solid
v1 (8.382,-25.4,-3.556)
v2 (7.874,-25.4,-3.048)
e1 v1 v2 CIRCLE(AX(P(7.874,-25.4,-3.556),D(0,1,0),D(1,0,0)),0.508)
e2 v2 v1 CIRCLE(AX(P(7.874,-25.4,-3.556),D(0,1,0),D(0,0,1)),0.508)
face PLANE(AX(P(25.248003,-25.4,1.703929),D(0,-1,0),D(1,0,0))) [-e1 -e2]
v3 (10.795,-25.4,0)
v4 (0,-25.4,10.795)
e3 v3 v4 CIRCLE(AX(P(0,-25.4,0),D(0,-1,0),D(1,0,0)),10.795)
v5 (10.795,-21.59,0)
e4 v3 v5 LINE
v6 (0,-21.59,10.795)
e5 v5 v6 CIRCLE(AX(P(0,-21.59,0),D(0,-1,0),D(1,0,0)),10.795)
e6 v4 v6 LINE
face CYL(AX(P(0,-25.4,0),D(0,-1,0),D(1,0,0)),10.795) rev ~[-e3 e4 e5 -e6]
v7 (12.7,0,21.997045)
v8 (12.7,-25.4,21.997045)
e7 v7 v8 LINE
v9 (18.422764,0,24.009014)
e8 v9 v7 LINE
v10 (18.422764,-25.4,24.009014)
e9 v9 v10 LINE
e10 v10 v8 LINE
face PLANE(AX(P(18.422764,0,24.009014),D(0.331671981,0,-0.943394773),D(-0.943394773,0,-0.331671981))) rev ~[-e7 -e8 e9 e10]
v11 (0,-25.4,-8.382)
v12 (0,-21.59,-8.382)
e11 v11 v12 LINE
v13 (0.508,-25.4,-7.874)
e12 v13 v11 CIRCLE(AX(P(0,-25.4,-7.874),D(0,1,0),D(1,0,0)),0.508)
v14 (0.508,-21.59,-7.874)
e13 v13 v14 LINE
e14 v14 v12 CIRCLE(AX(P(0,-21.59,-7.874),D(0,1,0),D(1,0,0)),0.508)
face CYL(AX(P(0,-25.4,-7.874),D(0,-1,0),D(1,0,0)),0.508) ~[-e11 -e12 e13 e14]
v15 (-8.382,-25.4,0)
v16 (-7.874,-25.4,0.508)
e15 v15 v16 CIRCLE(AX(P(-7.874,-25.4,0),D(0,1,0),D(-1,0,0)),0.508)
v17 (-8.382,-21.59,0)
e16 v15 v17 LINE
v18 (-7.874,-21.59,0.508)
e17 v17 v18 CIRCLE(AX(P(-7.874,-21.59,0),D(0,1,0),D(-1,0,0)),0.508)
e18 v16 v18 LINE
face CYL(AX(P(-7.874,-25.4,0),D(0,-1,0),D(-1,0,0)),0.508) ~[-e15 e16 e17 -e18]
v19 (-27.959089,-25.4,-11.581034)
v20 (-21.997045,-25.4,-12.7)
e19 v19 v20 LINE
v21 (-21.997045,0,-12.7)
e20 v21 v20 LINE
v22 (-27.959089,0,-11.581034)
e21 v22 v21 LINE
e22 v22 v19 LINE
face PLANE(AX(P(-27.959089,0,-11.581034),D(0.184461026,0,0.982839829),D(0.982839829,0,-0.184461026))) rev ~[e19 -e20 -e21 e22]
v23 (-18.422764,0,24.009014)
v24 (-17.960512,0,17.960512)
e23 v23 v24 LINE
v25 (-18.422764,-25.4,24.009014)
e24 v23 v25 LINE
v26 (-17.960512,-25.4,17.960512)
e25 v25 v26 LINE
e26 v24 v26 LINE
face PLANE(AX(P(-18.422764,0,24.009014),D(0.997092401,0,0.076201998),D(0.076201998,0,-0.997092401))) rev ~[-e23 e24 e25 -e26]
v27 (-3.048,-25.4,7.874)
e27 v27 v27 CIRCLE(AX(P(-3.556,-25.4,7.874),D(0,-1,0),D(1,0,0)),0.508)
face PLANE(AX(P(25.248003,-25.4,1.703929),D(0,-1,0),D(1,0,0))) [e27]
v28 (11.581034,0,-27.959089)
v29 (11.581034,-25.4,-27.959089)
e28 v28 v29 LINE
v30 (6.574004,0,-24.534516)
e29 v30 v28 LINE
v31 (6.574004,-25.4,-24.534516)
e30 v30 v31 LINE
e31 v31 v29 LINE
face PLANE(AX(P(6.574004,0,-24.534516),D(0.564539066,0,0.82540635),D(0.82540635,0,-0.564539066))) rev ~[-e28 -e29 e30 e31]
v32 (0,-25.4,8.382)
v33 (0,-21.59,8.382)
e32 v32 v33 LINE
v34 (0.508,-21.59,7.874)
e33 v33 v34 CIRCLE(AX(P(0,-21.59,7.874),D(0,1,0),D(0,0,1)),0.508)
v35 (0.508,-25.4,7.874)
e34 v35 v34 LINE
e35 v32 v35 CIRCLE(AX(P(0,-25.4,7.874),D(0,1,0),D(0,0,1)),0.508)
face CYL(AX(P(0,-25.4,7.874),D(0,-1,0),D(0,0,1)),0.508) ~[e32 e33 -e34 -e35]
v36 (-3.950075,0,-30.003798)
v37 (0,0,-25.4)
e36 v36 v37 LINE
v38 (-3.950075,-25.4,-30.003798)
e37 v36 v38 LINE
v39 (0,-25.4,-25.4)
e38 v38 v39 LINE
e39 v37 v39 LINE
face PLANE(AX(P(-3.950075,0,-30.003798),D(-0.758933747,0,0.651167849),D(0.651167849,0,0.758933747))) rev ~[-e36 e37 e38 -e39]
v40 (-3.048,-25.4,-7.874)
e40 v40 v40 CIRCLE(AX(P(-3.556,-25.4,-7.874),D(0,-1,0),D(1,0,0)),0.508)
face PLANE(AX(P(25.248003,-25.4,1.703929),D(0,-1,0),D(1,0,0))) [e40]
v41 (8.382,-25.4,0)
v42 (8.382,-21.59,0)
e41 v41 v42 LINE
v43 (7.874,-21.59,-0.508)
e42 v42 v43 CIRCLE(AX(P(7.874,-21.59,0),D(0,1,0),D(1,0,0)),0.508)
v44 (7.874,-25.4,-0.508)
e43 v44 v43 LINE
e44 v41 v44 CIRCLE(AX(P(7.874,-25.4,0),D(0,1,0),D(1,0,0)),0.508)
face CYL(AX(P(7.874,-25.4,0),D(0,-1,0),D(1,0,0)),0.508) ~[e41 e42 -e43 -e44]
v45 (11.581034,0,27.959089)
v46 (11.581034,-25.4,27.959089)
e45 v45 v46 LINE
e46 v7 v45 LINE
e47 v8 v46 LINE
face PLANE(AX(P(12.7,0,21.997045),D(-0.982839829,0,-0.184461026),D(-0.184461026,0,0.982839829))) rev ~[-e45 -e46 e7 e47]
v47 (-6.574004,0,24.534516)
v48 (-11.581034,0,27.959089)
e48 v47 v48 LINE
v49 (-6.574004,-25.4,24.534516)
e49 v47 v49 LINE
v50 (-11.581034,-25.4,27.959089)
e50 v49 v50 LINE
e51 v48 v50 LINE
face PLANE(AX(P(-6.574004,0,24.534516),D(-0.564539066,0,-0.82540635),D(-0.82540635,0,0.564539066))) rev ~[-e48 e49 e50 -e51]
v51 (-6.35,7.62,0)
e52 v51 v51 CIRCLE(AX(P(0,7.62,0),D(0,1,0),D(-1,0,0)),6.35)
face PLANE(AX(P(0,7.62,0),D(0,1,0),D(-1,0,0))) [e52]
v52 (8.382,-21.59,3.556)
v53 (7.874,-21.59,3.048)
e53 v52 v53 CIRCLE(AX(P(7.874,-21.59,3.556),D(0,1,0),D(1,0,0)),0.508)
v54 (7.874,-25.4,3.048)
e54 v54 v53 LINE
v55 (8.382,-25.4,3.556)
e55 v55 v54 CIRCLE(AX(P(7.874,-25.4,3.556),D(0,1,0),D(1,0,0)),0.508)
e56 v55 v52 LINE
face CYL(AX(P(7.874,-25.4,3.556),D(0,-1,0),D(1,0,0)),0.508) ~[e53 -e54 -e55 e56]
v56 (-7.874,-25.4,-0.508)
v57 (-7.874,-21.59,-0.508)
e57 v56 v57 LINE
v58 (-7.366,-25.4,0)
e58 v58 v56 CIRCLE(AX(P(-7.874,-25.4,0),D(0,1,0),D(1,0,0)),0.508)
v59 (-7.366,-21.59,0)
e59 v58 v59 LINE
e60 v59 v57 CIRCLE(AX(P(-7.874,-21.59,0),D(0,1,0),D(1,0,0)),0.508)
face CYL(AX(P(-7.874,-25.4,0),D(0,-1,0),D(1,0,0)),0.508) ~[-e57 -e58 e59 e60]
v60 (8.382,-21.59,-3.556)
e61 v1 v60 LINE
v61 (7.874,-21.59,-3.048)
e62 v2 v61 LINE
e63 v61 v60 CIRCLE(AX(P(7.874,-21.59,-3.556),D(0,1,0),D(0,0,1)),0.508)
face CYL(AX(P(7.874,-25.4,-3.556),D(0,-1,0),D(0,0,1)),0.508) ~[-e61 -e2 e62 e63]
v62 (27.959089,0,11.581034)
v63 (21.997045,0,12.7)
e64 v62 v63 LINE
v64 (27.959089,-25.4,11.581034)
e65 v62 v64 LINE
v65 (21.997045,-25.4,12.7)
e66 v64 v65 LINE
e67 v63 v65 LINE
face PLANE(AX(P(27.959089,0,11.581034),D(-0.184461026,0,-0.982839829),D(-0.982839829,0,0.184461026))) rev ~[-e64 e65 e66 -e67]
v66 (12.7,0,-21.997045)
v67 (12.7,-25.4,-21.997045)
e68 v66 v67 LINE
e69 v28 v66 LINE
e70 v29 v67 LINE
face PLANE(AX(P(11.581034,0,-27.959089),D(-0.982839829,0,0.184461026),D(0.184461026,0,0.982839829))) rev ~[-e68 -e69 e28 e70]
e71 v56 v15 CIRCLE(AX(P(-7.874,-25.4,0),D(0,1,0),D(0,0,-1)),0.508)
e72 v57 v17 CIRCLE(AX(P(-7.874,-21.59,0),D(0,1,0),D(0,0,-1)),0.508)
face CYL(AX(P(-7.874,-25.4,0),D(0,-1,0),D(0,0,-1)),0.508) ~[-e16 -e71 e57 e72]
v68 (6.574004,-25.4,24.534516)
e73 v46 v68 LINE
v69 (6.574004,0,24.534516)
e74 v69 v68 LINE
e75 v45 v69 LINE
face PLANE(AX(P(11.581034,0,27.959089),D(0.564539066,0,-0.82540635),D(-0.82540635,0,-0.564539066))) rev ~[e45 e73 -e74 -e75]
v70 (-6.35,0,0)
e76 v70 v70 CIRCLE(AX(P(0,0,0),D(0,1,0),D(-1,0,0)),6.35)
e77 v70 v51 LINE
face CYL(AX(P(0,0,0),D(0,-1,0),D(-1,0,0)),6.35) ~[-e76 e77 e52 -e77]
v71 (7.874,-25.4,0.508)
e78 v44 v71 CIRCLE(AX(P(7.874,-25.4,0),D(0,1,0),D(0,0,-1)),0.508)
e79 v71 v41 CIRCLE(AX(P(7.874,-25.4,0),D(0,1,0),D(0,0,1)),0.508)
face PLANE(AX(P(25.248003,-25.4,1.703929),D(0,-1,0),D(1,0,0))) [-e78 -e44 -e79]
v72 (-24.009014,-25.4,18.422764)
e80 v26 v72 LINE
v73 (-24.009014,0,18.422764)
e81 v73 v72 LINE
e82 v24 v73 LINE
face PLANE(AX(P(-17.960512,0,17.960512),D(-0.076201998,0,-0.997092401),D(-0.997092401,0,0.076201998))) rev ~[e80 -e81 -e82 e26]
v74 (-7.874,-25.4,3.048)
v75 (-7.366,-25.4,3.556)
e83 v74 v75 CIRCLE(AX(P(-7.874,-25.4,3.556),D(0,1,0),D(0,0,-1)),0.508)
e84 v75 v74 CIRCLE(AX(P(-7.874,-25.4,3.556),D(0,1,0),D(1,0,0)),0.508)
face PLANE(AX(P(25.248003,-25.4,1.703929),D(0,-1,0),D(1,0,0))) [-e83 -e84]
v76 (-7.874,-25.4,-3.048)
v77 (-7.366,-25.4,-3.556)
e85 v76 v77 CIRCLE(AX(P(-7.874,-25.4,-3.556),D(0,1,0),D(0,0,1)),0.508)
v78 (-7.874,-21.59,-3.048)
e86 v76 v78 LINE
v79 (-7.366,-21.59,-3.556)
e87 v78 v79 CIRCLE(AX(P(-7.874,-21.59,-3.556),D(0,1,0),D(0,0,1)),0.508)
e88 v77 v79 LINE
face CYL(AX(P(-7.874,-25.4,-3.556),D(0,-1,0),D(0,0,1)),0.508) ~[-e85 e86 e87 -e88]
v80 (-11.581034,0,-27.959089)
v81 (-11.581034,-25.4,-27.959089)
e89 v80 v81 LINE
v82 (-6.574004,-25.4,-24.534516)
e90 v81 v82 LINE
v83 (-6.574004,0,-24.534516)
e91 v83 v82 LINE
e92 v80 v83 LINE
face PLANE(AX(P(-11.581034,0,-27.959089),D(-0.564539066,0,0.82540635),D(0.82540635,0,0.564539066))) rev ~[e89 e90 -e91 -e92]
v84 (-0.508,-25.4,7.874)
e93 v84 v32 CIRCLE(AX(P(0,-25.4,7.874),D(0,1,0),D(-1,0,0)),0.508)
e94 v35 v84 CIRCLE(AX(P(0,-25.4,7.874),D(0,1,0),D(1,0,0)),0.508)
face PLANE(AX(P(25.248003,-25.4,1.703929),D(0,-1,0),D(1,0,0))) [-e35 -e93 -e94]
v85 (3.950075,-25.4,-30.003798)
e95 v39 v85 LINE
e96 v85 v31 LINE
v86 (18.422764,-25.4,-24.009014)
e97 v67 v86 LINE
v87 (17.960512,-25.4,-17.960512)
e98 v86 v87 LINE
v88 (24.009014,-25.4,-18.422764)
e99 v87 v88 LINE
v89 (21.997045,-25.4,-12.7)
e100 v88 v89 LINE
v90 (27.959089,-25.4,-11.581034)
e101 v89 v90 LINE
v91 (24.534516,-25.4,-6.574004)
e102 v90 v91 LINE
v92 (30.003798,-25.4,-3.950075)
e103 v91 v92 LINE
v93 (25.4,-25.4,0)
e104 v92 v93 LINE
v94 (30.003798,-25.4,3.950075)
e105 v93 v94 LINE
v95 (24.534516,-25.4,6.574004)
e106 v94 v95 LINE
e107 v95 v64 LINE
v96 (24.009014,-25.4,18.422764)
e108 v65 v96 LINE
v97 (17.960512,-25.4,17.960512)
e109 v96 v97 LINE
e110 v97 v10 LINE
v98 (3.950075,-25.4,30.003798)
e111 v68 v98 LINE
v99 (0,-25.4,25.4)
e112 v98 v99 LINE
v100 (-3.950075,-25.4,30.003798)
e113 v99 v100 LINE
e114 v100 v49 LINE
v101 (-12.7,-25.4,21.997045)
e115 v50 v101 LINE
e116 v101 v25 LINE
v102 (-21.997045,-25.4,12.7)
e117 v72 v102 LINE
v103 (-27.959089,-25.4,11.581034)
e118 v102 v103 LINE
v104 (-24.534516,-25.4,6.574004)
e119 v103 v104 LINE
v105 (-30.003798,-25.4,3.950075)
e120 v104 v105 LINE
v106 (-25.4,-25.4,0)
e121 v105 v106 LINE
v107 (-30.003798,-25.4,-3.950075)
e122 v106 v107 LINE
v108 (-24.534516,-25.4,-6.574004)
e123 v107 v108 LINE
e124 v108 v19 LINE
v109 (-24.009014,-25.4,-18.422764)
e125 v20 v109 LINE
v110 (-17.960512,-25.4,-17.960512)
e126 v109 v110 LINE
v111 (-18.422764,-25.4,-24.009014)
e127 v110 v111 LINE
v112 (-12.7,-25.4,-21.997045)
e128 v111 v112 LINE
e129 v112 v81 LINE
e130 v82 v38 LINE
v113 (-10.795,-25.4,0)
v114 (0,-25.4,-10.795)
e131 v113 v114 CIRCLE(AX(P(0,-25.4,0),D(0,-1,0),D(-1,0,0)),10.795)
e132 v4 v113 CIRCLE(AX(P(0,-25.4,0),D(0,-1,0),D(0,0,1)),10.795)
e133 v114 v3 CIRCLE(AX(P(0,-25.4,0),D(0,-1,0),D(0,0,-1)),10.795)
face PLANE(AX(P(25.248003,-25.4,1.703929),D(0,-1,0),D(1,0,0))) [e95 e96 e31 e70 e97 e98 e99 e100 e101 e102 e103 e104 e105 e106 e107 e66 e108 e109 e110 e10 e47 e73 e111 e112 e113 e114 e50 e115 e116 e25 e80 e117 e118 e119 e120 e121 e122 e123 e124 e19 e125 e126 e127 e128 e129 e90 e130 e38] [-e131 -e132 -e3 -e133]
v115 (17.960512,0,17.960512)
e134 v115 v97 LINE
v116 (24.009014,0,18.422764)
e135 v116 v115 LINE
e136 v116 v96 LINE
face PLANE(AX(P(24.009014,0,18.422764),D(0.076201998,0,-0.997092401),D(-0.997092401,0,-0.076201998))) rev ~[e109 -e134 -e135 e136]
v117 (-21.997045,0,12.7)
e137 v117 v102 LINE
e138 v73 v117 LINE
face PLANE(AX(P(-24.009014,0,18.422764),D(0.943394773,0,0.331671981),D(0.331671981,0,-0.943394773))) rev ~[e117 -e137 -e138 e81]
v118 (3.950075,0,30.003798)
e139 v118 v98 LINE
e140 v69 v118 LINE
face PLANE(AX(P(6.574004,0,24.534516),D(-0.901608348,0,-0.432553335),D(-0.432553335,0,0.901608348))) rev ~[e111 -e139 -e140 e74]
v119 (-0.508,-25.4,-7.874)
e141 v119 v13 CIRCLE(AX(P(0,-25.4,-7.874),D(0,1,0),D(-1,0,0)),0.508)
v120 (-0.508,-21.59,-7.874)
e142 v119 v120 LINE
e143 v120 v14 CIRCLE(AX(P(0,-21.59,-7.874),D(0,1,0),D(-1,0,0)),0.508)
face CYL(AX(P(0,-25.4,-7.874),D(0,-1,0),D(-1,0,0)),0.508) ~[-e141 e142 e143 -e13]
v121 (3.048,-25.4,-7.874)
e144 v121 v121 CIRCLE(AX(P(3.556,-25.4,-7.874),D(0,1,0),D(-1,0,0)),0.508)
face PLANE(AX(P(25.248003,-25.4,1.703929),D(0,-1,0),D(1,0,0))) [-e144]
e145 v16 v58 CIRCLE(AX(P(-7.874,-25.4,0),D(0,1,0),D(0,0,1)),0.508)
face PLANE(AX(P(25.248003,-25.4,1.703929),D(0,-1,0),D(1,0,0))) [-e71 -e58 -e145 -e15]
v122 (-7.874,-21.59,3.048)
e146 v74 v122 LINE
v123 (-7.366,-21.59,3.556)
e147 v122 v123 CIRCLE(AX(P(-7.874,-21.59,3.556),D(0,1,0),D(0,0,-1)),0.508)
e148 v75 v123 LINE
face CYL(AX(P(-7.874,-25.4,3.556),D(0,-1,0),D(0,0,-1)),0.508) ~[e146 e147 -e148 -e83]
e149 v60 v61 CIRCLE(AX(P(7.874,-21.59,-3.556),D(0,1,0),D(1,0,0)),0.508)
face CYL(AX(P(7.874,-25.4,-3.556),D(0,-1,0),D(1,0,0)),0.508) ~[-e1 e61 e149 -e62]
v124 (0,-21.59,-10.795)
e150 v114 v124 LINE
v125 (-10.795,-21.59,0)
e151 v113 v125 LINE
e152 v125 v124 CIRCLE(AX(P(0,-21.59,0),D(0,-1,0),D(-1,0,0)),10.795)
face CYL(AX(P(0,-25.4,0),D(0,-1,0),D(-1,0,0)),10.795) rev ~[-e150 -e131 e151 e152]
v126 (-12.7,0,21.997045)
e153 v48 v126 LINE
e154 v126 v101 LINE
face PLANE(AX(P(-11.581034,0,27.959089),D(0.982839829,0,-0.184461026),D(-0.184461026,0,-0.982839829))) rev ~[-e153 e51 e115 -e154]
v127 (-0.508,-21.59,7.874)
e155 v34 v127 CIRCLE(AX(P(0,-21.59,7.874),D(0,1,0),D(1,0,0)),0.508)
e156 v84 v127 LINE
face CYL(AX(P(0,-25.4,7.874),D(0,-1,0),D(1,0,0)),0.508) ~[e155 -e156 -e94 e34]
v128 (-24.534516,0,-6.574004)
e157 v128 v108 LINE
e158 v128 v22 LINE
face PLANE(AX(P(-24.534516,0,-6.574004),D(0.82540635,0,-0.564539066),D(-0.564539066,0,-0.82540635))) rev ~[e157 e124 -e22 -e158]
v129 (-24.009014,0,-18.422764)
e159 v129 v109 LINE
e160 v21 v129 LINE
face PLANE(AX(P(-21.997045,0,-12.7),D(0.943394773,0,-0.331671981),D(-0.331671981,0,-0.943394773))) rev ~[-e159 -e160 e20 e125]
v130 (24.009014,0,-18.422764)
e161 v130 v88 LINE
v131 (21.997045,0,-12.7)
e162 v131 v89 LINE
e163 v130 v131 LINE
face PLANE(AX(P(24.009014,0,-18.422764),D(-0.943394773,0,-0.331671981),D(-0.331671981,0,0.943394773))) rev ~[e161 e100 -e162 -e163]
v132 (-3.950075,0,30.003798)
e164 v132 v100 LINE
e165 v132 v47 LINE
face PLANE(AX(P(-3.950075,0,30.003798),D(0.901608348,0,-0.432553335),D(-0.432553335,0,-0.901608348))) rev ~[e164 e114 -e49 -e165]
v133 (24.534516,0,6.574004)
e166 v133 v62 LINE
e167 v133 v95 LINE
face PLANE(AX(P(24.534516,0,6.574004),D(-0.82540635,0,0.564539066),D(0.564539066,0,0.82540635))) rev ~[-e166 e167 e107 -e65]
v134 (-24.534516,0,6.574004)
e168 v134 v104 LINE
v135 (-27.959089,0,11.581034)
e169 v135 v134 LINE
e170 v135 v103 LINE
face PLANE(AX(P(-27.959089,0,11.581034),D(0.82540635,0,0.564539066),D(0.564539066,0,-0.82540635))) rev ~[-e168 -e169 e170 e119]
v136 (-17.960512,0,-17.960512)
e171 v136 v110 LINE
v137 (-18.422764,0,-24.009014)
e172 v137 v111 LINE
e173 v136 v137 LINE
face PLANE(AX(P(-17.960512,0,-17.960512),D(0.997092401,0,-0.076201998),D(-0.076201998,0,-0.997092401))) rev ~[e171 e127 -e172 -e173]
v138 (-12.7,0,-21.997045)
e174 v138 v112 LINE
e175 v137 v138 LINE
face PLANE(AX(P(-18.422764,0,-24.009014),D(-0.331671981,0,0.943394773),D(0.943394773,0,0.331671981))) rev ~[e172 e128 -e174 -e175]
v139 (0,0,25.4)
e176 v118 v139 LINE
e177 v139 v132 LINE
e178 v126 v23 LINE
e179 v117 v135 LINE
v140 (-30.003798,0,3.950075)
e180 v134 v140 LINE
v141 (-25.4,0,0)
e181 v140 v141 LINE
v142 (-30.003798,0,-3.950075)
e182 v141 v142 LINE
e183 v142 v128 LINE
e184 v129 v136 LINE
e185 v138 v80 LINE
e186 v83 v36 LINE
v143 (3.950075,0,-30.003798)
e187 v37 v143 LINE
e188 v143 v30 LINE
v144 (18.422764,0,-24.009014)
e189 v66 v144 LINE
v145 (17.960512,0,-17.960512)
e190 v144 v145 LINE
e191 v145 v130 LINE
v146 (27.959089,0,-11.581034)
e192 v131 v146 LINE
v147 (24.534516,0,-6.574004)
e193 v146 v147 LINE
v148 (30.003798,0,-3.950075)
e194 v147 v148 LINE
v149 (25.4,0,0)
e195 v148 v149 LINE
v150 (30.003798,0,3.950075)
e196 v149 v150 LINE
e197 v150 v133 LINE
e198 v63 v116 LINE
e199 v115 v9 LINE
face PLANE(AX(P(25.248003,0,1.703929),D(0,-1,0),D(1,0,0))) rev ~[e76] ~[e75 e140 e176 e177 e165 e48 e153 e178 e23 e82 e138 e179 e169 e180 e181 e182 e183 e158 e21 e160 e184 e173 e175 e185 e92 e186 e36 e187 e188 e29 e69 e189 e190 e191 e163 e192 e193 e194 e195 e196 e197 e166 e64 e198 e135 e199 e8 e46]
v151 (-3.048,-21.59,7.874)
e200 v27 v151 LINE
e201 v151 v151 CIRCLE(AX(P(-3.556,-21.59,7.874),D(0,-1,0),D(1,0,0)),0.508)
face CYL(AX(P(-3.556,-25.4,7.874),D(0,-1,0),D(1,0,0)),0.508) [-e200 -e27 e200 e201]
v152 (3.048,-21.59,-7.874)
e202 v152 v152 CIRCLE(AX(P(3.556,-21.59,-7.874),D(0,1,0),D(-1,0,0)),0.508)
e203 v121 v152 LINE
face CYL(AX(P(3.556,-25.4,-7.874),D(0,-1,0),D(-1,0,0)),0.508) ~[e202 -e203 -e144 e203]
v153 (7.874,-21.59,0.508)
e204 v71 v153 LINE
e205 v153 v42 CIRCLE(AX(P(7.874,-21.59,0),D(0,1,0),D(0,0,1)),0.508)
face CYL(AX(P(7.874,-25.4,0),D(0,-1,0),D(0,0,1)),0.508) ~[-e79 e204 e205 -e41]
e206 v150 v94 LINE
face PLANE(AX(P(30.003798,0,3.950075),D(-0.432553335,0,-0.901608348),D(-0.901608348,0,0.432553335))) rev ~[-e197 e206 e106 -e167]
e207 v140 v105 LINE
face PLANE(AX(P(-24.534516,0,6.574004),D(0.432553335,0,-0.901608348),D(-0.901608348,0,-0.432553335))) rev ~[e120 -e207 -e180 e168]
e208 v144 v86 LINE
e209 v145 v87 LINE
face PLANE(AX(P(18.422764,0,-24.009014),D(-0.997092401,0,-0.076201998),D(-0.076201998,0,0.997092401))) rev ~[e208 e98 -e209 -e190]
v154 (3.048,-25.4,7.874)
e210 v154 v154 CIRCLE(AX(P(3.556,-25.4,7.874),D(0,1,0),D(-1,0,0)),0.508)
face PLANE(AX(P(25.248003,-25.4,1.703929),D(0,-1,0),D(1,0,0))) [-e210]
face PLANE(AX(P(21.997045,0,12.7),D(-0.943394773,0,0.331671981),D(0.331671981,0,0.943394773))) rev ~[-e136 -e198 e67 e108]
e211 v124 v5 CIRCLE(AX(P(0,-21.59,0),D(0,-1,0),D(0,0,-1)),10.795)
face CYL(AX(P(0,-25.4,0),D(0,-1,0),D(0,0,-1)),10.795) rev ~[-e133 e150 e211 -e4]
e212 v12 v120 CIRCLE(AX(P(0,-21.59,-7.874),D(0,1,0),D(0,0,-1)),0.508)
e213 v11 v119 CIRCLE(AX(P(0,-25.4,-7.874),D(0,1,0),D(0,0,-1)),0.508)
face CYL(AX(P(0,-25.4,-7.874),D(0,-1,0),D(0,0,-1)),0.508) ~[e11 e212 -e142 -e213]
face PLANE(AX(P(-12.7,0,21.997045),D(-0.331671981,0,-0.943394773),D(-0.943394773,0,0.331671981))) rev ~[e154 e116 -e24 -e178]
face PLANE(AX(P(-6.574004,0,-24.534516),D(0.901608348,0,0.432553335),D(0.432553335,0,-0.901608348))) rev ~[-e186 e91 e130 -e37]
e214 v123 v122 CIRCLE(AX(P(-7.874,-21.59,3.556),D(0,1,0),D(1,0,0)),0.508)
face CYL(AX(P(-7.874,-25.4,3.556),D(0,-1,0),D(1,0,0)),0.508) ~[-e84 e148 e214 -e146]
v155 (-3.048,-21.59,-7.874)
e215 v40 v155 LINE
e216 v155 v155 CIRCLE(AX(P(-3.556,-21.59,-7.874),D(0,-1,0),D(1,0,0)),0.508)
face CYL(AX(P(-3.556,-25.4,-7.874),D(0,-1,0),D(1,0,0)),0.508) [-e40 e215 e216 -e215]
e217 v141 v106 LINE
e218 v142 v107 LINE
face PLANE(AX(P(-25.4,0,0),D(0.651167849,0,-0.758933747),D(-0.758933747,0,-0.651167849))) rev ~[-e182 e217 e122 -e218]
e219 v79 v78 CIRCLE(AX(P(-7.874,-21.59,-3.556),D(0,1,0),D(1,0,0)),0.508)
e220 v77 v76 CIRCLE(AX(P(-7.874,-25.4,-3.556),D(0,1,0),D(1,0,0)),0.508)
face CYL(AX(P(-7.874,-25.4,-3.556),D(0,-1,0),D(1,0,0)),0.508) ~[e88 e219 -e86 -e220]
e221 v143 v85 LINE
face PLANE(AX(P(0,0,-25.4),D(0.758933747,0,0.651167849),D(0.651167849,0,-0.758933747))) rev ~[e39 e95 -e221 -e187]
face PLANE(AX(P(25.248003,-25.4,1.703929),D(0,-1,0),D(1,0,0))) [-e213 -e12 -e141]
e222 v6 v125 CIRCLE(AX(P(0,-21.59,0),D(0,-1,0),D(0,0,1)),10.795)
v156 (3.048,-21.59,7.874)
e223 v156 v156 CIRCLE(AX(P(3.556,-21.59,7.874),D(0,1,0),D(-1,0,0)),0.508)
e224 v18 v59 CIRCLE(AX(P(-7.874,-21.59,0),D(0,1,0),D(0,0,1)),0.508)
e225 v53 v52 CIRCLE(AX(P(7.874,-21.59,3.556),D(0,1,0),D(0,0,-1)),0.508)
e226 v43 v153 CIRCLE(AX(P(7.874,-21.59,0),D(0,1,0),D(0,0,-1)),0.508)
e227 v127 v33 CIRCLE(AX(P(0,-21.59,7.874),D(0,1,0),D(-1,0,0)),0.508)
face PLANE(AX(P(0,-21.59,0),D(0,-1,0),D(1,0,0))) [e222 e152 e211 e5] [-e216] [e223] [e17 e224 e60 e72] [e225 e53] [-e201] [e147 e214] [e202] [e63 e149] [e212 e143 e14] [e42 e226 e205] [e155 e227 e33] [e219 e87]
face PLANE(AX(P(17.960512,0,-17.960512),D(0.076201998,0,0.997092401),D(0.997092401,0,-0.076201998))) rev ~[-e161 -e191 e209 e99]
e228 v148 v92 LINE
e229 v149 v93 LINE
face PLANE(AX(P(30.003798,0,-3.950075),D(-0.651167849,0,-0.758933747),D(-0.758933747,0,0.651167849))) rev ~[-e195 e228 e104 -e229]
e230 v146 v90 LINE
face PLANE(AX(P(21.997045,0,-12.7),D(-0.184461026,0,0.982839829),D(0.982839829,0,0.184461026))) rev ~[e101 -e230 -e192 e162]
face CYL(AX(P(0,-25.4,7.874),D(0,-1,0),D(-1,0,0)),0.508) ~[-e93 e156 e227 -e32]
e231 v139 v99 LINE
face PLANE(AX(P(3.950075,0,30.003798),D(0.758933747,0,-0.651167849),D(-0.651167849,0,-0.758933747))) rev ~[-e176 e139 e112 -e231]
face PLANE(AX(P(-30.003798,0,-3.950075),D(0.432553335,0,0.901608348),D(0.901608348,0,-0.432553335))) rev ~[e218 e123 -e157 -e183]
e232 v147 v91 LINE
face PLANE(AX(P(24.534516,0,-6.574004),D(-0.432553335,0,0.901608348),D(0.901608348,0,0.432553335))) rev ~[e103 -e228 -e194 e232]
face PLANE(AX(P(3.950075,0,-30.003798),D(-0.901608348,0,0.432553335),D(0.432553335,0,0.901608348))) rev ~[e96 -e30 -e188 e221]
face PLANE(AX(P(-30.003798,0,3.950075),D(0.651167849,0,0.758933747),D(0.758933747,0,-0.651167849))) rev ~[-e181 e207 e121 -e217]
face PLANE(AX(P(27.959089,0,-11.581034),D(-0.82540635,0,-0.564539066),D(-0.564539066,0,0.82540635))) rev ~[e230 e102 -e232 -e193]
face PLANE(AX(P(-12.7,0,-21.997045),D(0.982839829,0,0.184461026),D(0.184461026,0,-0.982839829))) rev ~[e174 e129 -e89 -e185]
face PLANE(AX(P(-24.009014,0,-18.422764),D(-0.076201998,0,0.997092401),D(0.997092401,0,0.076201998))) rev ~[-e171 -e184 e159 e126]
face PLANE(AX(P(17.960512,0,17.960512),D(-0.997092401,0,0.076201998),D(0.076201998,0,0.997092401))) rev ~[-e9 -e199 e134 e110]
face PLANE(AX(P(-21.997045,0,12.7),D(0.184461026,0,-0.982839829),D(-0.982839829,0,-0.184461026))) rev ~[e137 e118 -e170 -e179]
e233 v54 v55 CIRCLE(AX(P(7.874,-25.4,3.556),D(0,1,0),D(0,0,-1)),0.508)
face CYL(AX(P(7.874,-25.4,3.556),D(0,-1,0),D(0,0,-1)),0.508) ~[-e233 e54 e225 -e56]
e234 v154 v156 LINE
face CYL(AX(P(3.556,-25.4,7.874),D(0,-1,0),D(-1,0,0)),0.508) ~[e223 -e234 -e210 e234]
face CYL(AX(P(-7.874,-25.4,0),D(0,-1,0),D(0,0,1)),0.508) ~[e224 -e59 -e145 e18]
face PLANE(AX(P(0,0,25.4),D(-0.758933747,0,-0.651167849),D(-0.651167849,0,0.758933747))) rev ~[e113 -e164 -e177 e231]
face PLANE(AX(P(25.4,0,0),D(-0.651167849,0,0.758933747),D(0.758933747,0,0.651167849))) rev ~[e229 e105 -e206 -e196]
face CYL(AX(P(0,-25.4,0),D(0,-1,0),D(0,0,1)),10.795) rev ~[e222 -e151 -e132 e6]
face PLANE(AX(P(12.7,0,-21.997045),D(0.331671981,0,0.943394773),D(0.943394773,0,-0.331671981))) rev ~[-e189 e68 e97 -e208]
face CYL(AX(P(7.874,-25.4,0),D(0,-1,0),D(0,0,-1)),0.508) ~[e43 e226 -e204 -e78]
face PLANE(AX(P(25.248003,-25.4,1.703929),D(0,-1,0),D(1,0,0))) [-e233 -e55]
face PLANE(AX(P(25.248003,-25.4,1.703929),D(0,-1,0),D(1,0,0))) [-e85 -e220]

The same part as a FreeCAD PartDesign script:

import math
import FreeCAD as App
import Part
import Sketcher
from FreeCAD import Vector
Q = App.Units.Quantity

doc = App.newDocument("Part")
body = doc.addObject("PartDesign::Body", "Body")

sketch1 = body.newObject("Sketcher::SketchObject", "Sketch")
sketch1.AttachmentSupport = (doc.getObject("XZ_Plane"), [""])
sketch1.MapMode = "FlatFace"
sketch1.addGeometry([
    Part.LineSegment(Vector(-4, 30, 0), Vector(-7, 25, 0)),
    Part.LineSegment(Vector(-7, 25, 0), Vector(-12, 28, 0)),
    Part.LineSegment(Vector(-12, 28, 0), Vector(-13, 22, 0)),
    Part.LineSegment(Vector(-13, 22, 0), Vector(-18, 24, 0)),
    Part.LineSegment(Vector(-18, 24, 0), Vector(-18, 18, 0)),
    Part.LineSegment(Vector(-18, 18, 0), Vector(-24, 18, 0)),
    Part.LineSegment(Vector(-24, 18, 0), Vector(-22, 13, 0)),
    Part.LineSegment(Vector(-22, 13, 0), Vector(-28, 12, 0)),
    Part.LineSegment(Vector(-28, 12, 0), Vector(-25, 7, 0)),
    Part.LineSegment(Vector(-25, 7, 0), Vector(-30, 4, 0)),
    Part.LineSegment(Vector(-30, 4, 0), Vector(-25, 0, 0)),
    Part.LineSegment(Vector(-25, 0, 0), Vector(-30, -4, 0)),
    Part.LineSegment(Vector(-30, -4, 0), Vector(-25, -7, 0)),
    Part.LineSegment(Vector(-25, -7, 0), Vector(-28, -12, 0)),
    Part.LineSegment(Vector(-28, -12, 0), Vector(-22, -13, 0)),
    Part.LineSegment(Vector(-22, -13, 0), Vector(-24, -18, 0)),
    Part.LineSegment(Vector(-24, -18, 0), Vector(-18, -18, 0)),
    Part.LineSegment(Vector(-18, -18, 0), Vector(-18, -24, 0)),
    Part.LineSegment(Vector(-18, -24, 0), Vector(-13, -22, 0)),
    Part.LineSegment(Vector(-13, -22, 0), Vector(-12, -28, 0)),
    Part.LineSegment(Vector(-12, -28, 0), Vector(-7, -25, 0)),
    Part.LineSegment(Vector(-7, -25, 0), Vector(-4, -30, 0)),
    Part.LineSegment(Vector(-4, -30, 0), Vector(0, -25, 0)),
    Part.LineSegment(Vector(0, -25, 0), Vector(4, -30, 0)),
    Part.LineSegment(Vector(4, -30, 0), Vector(7, -25, 0)),
    Part.LineSegment(Vector(7, -25, 0), Vector(12, -28, 0)),
    Part.LineSegment(Vector(12, -28, 0), Vector(13, -22, 0)),
    Part.LineSegment(Vector(13, -22, 0), Vector(18, -24, 0)),
    Part.LineSegment(Vector(18, -24, 0), Vector(18, -18, 0)),
    Part.LineSegment(Vector(18, -18, 0), Vector(24, -18, 0)),
    Part.LineSegment(Vector(24, -18, 0), Vector(22, -13, 0)),
    Part.LineSegment(Vector(22, -13, 0), Vector(28, -12, 0)),
    Part.LineSegment(Vector(28, -12, 0), Vector(25, -7, 0)),
    Part.LineSegment(Vector(25, -7, 0), Vector(30, -4, 0)),
    Part.LineSegment(Vector(30, -4, 0), Vector(25, 0, 0)),
    Part.LineSegment(Vector(25, 0, 0), Vector(30, 4, 0)),
    Part.LineSegment(Vector(30, 4, 0), Vector(25, 7, 0)),
    Part.LineSegment(Vector(25, 7, 0), Vector(28, 12, 0)),
    Part.LineSegment(Vector(28, 12, 0), Vector(22, 13, 0)),
    Part.LineSegment(Vector(22, 13, 0), Vector(24, 18, 0)),
    Part.LineSegment(Vector(24, 18, 0), Vector(18, 18, 0)),
    Part.LineSegment(Vector(18, 18, 0), Vector(18, 24, 0)),
    Part.LineSegment(Vector(18, 24, 0), Vector(13, 22, 0)),
    Part.LineSegment(Vector(13, 22, 0), Vector(12, 28, 0)),
    Part.LineSegment(Vector(12, 28, 0), Vector(7, 25, 0)),
    Part.LineSegment(Vector(7, 25, 0), Vector(4, 30, 0)),
    Part.LineSegment(Vector(4, 30, 0), Vector(0, 25, 0)),
    Part.LineSegment(Vector(0, 25, 0), Vector(-4, 30, 0)),
], False)
sketch1.addConstraint([
    Sketcher.Constraint("Coincident", 0, 2, 1, 1),
    Sketcher.Constraint("Coincident", 1, 2, 2, 1),
    Sketcher.Constraint("Coincident", 2, 2, 3, 1),
    Sketcher.Constraint("Coincident", 3, 2, 4, 1),
    Sketcher.Constraint("Coincident", 4, 2, 5, 1),
    Sketcher.Constraint("Coincident", 5, 2, 6, 1),
    Sketcher.Constraint("Coincident", 6, 2, 7, 1),
    Sketcher.Constraint("Coincident", 7, 2, 8, 1),
    Sketcher.Constraint("Coincident", 8, 2, 9, 1),
    Sketcher.Constraint("Coincident", 9, 2, 10, 1),
    Sketcher.Constraint("Coincident", 10, 2, 11, 1),
    Sketcher.Constraint("Coincident", 11, 2, 12, 1),
    Sketcher.Constraint("Coincident", 12, 2, 13, 1),
    Sketcher.Constraint("Coincident", 13, 2, 14, 1),
    Sketcher.Constraint("Coincident", 14, 2, 15, 1),
    Sketcher.Constraint("Coincident", 15, 2, 16, 1),
    Sketcher.Constraint("Coincident", 16, 2, 17, 1),
    Sketcher.Constraint("Coincident", 17, 2, 18, 1),
    Sketcher.Constraint("Coincident", 18, 2, 19, 1),
    Sketcher.Constraint("Coincident", 19, 2, 20, 1),
    Sketcher.Constraint("Coincident", 20, 2, 21, 1),
    Sketcher.Constraint("Coincident", 21, 2, 22, 1),
    Sketcher.Constraint("Coincident", 22, 2, 23, 1),
    Sketcher.Constraint("Coincident", 23, 2, 24, 1),
    Sketcher.Constraint("Coincident", 24, 2, 25, 1),
    Sketcher.Constraint("Coincident", 25, 2, 26, 1),
    Sketcher.Constraint("Coincident", 26, 2, 27, 1),
    Sketcher.Constraint("Coincident", 27, 2, 28, 1),
    Sketcher.Constraint("Coincident", 28, 2, 29, 1),
    Sketcher.Constraint("Coincident", 29, 2, 30, 1),
    Sketcher.Constraint("Coincident", 30, 2, 31, 1),
    Sketcher.Constraint("Coincident", 31, 2, 32, 1),
    Sketcher.Constraint("Coincident", 32, 2, 33, 1),
    Sketcher.Constraint("Coincident", 33, 2, 34, 1),
    Sketcher.Constraint("Coincident", 34, 2, 35, 1),
    Sketcher.Constraint("Coincident", 35, 2, 36, 1),
    Sketcher.Constraint("Coincident", 36, 2, 37, 1),
    Sketcher.Constraint("Coincident", 37, 2, 38, 1),
    Sketcher.Constraint("Coincident", 38, 2, 39, 1),
    Sketcher.Constraint("Coincident", 39, 2, 40, 1),
    Sketcher.Constraint("Coincident", 40, 2, 41, 1),
    Sketcher.Constraint("Coincident", 41, 2, 42, 1),
    Sketcher.Constraint("Coincident", 42, 2, 43, 1),
    Sketcher.Constraint("Coincident", 43, 2, 44, 1),
    Sketcher.Constraint("Coincident", 44, 2, 45, 1),
    Sketcher.Constraint("Coincident", 45, 2, 46, 1),
    Sketcher.Constraint("Coincident", 46, 2, 47, 1),
    Sketcher.Constraint("Coincident", 47, 2, 0, 1),
    Sketcher.Constraint("Symmetric", 0, 2, 24, 2, -1, 1),
    Sketcher.Constraint("Symmetric", 1, 2, 25, 2, -1, 1),
    Sketcher.Constraint("Symmetric", 2, 2, 26, 2, -1, 1),
    Sketcher.Constraint("Symmetric", 3, 2, 27, 2, -1, 1),
    Sketcher.Constraint("Symmetric", 4, 2, 28, 2, -1, 1),
    Sketcher.Constraint("Symmetric", 5, 2, 29, 2, -1, 1),
    Sketcher.Constraint("Symmetric", 6, 2, 30, 2, -1, 1),
    Sketcher.Constraint("Symmetric", 7, 2, 31, 2, -1, 1),
    Sketcher.Constraint("Symmetric", 8, 2, 32, 2, -1, 1),
    Sketcher.Constraint("Symmetric", 9, 2, 33, 2, -1, 1),
    Sketcher.Constraint("Symmetric", 10, 2, 34, 2, -1, 1),
    Sketcher.Constraint("Symmetric", 11, 2, 35, 2, -1, 1),
    Sketcher.Constraint("Symmetric", 12, 2, 36, 2, -1, 1),
    Sketcher.Constraint("Symmetric", 13, 2, 37, 2, -1, 1),
    Sketcher.Constraint("Symmetric", 14, 2, 38, 2, -1, 1),
    Sketcher.Constraint("Symmetric", 15, 2, 39, 2, -1, 1),
    Sketcher.Constraint("Symmetric", 16, 2, 40, 2, -1, 1),
    Sketcher.Constraint("Symmetric", 17, 2, 41, 2, -1, 1),
    Sketcher.Constraint("Symmetric", 18, 2, 42, 2, -1, 1),
    Sketcher.Constraint("Symmetric", 19, 2, 43, 2, -1, 1),
    Sketcher.Constraint("Symmetric", 20, 2, 44, 2, -1, 1),
    Sketcher.Constraint("Symmetric", 21, 2, 45, 2, -1, 1),
    Sketcher.Constraint("Symmetric", 22, 2, 46, 2, -1, 1),
    Sketcher.Constraint("Symmetric", 23, 2, 47, 2, -1, 1),
    Sketcher.Constraint("Symmetric", 21, 2, 23, 2, -2),
    Sketcher.Constraint("Symmetric", 20, 2, 24, 2, -2),
    Sketcher.Constraint("Symmetric", 19, 2, 25, 2, -2),
    Sketcher.Constraint("Symmetric", 18, 2, 26, 2, -2),
    Sketcher.Constraint("Symmetric", 17, 2, 27, 2, -2),
    Sketcher.Constraint("Symmetric", 16, 2, 28, 2, -2),
    Sketcher.Constraint("Symmetric", 15, 2, 29, 2, -2),
    Sketcher.Constraint("Symmetric", 14, 2, 30, 2, -2),
    Sketcher.Constraint("Symmetric", 13, 2, 31, 2, -2),
    Sketcher.Constraint("Symmetric", 12, 2, 32, 2, -2),
    Sketcher.Constraint("Symmetric", 11, 2, 33, 2, -2),
    Sketcher.Constraint("PointOnObject", 10, 2, -1),
    Sketcher.Constraint("PointOnObject", 22, 2, -2),
    Sketcher.Constraint("Perpendicular", 0, 12),
    Sketcher.Constraint("Perpendicular", 1, 13),
    Sketcher.Constraint("Perpendicular", 2, 14),
    Sketcher.Constraint("Perpendicular", 3, 15),
    Sketcher.Constraint("Perpendicular", 4, 16),
    Sketcher.Constraint("Perpendicular", 10, 22),
    Sketcher.Constraint("Equal", 0, 1),
    Sketcher.Constraint("Equal", 1, 2),
    Sketcher.Constraint("Equal", 2, 3),
    Sketcher.Constraint("Equal", 3, 4),
    Sketcher.Constraint("Equal", 4, 5),
    Sketcher.Constraint("Equal", 5, 6),
    Sketcher.Constraint("Equal", 6, 7),
    Sketcher.Constraint("Equal", 7, 8),
    Sketcher.Constraint("Equal", 8, 9),
    Sketcher.Constraint("Equal", 9, 10),
    Sketcher.Constraint("Equal", 21, 22),
    Sketcher.Constraint("DistanceX", 10, 2, -1, 1, Q("1 in")),
    Sketcher.Constraint("DistanceX", 2, 2, -1, 1, Q("0.5 in")),
    Sketcher.Constraint("DistanceY", 4, 2, 3, 2, Q("6.048501 mm")),
    Sketcher.Constraint("Distance", 0, Q("6.066139 mm")),
    Sketcher.Constraint("DistanceY", -1, 1, 1, 2, Q("27.959089 mm")),
    Sketcher.Constraint("DistanceX", 1, 2, 0, 2, Q("5.00703 mm")),
    Sketcher.Constraint("DistanceY", 2, 2, 0, 2, Q("2.537471 mm")),
])
pad1 = body.newObject("PartDesign::Pad", "Pad")
pad1.Profile = sketch1
pad1.Length = Q("1 in")

sketch2 = body.newObject("Sketcher::SketchObject", "Sketch001")
sketch2.AttachmentSupport = (doc.getObject("XZ_Plane"), [""])
sketch2.MapMode = "FlatFace"
sketch2.AttachmentOffset = App.Placement(Vector(0, 0, 1 * 25.4), App.Rotation())
sketch2.addGeometry([
    Part.ArcOfCircle(Part.Circle(Vector(0, 0, 0), Vector(0, 0, 1), 10.8), math.radians(-90), math.radians(0)),
    Part.ArcOfCircle(Part.Circle(Vector(0, 0, 0), Vector(0, 0, 1), 10.8), math.radians(0), math.radians(90)),
    Part.ArcOfCircle(Part.Circle(Vector(0, 0, 0), Vector(0, 0, 1), 10.8), math.radians(90), math.radians(180)),
    Part.ArcOfCircle(Part.Circle(Vector(0, 0, 0), Vector(0, 0, 1), 10.8), math.radians(180), math.radians(270)),
    Part.Circle(Vector(-3.6, -7.9, 0), Vector(0, 0, 1), 0.5),
    Part.ArcOfCircle(Part.Circle(Vector(0, -7.9, 0), Vector(0, 0, 1), 0.5), math.radians(0), math.radians(180)),
    Part.ArcOfCircle(Part.Circle(Vector(0, -7.9, 0), Vector(0, 0, 1), 0.5), math.radians(-90), math.radians(0)),
    Part.ArcOfCircle(Part.Circle(Vector(0, -7.9, 0), Vector(0, 0, 1), 0.5), math.radians(180), math.radians(270)),
    Part.ArcOfCircle(Part.Circle(Vector(-7.9, -3.6, 0), Vector(0, 0, 1), 0.5), math.radians(0), math.radians(90)),
    Part.ArcOfCircle(Part.Circle(Vector(-7.9, -3.6, 0), Vector(0, 0, 1), 0.5), math.radians(90), math.radians(360)),
    Part.Circle(Vector(3.6, -7.9, 0), Vector(0, 0, 1), 0.5),
    Part.ArcOfCircle(Part.Circle(Vector(7.9, -3.6, 0), Vector(0, 0, 1), 0.5), math.radians(0), math.radians(90)),
    Part.ArcOfCircle(Part.Circle(Vector(7.9, -3.6, 0), Vector(0, 0, 1), 0.5), math.radians(90), math.radians(360)),
    Part.ArcOfCircle(Part.Circle(Vector(-7.9, 0, 0), Vector(0, 0, 1), 0.5), math.radians(-90), math.radians(0)),
    Part.ArcOfCircle(Part.Circle(Vector(-7.9, 0, 0), Vector(0, 0, 1), 0.5), math.radians(180), math.radians(270)),
    Part.ArcOfCircle(Part.Circle(Vector(-7.9, 0, 0), Vector(0, 0, 1), 0.5), math.radians(90), math.radians(180)),
    Part.ArcOfCircle(Part.Circle(Vector(-7.9, 0, 0), Vector(0, 0, 1), 0.5), math.radians(0), math.radians(90)),
    Part.ArcOfCircle(Part.Circle(Vector(-7.9, 3.6, 0), Vector(0, 0, 1), 0.5), math.radians(0), math.radians(270)),
    Part.ArcOfCircle(Part.Circle(Vector(-7.9, 3.6, 0), Vector(0, 0, 1), 0.5), math.radians(-90), math.radians(0)),
    Part.Circle(Vector(-3.6, 7.9, 0), Vector(0, 0, 1), 0.5),
    Part.ArcOfCircle(Part.Circle(Vector(0, 7.9, 0), Vector(0, 0, 1), 0.5), math.radians(180), math.radians(360)),
    Part.ArcOfCircle(Part.Circle(Vector(0, 7.9, 0), Vector(0, 0, 1), 0.5), math.radians(90), math.radians(180)),
    Part.ArcOfCircle(Part.Circle(Vector(0, 7.9, 0), Vector(0, 0, 1), 0.5), math.radians(0), math.radians(90)),
    Part.ArcOfCircle(Part.Circle(Vector(7.9, 0, 0), Vector(0, 0, 1), 0.5), math.radians(90), math.radians(270)),
    Part.ArcOfCircle(Part.Circle(Vector(7.9, 0, 0), Vector(0, 0, 1), 0.5), math.radians(0), math.radians(90)),
    Part.ArcOfCircle(Part.Circle(Vector(7.9, 0, 0), Vector(0, 0, 1), 0.5), math.radians(-90), math.radians(0)),
    Part.ArcOfCircle(Part.Circle(Vector(7.9, 3.6, 0), Vector(0, 0, 1), 0.5), math.radians(0), math.radians(270)),
    Part.ArcOfCircle(Part.Circle(Vector(7.9, 3.6, 0), Vector(0, 0, 1), 0.5), math.radians(-90), math.radians(0)),
    Part.Circle(Vector(3.6, 7.9, 0), Vector(0, 0, 1), 0.5),
], False)
sketch2.addConstraint([
    Sketcher.Constraint("Tangent", 0, 2, 1, 1),
    Sketcher.Constraint("Tangent", 1, 2, 2, 1),
    Sketcher.Constraint("Tangent", 2, 2, 3, 1),
    Sketcher.Constraint("Tangent", 3, 2, 0, 1),
    Sketcher.Constraint("Tangent", 5, 1, 6, 2),
    Sketcher.Constraint("Tangent", 6, 1, 7, 2),
    Sketcher.Constraint("Tangent", 7, 1, 5, 2),
    Sketcher.Constraint("Tangent", 8, 1, 9, 2),
    Sketcher.Constraint("Coincident", 9, 1, 8, 2),
    Sketcher.Constraint("Tangent", 11, 1, 12, 2),
    Sketcher.Constraint("Coincident", 12, 1, 11, 2),
    Sketcher.Constraint("Tangent", 13, 1, 14, 2),
    Sketcher.Constraint("Tangent", 14, 1, 15, 2),
    Sketcher.Constraint("Tangent", 15, 1, 16, 2),
    Sketcher.Constraint("Tangent", 16, 1, 13, 2),
    Sketcher.Constraint("Tangent", 17, 1, 18, 2),
    Sketcher.Constraint("Coincident", 18, 1, 17, 2),
    Sketcher.Constraint("Tangent", 20, 1, 21, 2),
    Sketcher.Constraint("Tangent", 21, 1, 22, 2),
    Sketcher.Constraint("Tangent", 22, 1, 20, 2),
    Sketcher.Constraint("Tangent", 23, 1, 24, 2),
    Sketcher.Constraint("Tangent", 24, 1, 25, 2),
    Sketcher.Constraint("Tangent", 25, 1, 23, 2),
    Sketcher.Constraint("Tangent", 26, 1, 27, 2),
    Sketcher.Constraint("Coincident", 27, 1, 26, 2),
    Sketcher.Constraint("Coincident", 0, 3, -1, 1),
    Sketcher.Constraint("Equal", 0, 1),
    Sketcher.Constraint("Equal", 4, 5),
    Sketcher.Constraint("Equal", 7, 8),
    Sketcher.Constraint("Equal", 9, 10),
    Sketcher.Constraint("Equal", 10, 11),
    Sketcher.Constraint("Equal", 12, 13),
    Sketcher.Constraint("Equal", 13, 14),
    Sketcher.Constraint("Equal", 16, 17),
    Sketcher.Constraint("Equal", 18, 19),
    Sketcher.Constraint("Equal", 19, 20),
    Sketcher.Constraint("Equal", 22, 23),
    Sketcher.Constraint("Equal", 25, 26),
    Sketcher.Constraint("Equal", 27, 28),
    Sketcher.Constraint("Symmetric", 11, 3, 17, 3, -1, 1),
    Sketcher.Constraint("Symmetric", 10, 3, 19, 3, -1, 1),
    Sketcher.Constraint("Symmetric", 5, 3, 20, 3, -1, 1),
    Sketcher.Constraint("Symmetric", 13, 3, 23, 3, -1, 1),
    Sketcher.Constraint("Symmetric", 8, 3, 26, 3, -1, 1),
    Sketcher.Constraint("Symmetric", 4, 3, 28, 3, -1, 1),
    Sketcher.Constraint("Symmetric", 4, 3, 10, 3, -2),
    Sketcher.Constraint("Symmetric", 8, 3, 11, 3, -2),
    Sketcher.Constraint("Symmetric", 5, 1, 7, 1, -2),
    Sketcher.Constraint("Symmetric", 15, 1, 23, 1, -2),
    Sketcher.Constraint("PointOnObject", 0, 2, -1),
    Sketcher.Constraint("PointOnObject", 1, 2, -2),
    Sketcher.Constraint("PointOnObject", 2, 2, -1),
    Sketcher.Constraint("PointOnObject", 3, 2, -2),
    Sketcher.Constraint("PointOnObject", 6, 1, -2),
    Sketcher.Constraint("PointOnObject", 14, 1, -1),
    Sketcher.Constraint("PointOnObject", 16, 1, -1),
    Sketcher.Constraint("PointOnObject", 21, 1, -2),
    Sketcher.Constraint("PointOnObject", 24, 1, -1),
    Sketcher.Constraint("Horizontal", 4, 3, 5, 3),
    Sketcher.Constraint("Horizontal", 10, 3, 5, 1),
    Sketcher.Constraint("Horizontal", 12, 3, 8, 1),
    Sketcher.Constraint("Horizontal", 8, 1, 11, 1),
    Sketcher.Constraint("Horizontal", 27, 3, 17, 1),
    Sketcher.Constraint("Horizontal", 28, 3, 20, 1),
    Sketcher.Constraint("Horizontal", 20, 1, 22, 1),
    Sketcher.Constraint("Horizontal", 17, 1, 26, 1),
    Sketcher.Constraint("Vertical", 9, 3, 13, 3),
    Sketcher.Constraint("Vertical", 18, 3, 9, 1),
    Sketcher.Constraint("Vertical", 27, 3, 12, 1),
    Sketcher.Constraint("Vertical", 9, 1, 13, 1),
    Sketcher.Constraint("Vertical", 13, 1, 15, 1),
    Sketcher.Constraint("Vertical", 15, 1, 18, 1),
    Sketcher.Constraint("Vertical", 23, 1, 25, 1),
    Sketcher.Constraint("Vertical", 25, 1, 27, 1),
    Sketcher.Constraint("Diameter", 4, Q("0.04 in")),
    Sketcher.Constraint("Radius", 0, Q("0.425 in")),
    Sketcher.Constraint("DistanceY", 9, 1, 13, 1, Q("0.1 in")),
    Sketcher.Constraint("DistanceX", 4, 3, -1, 1, Q("0.14 in")),
    Sketcher.Constraint("DistanceY", 4, 3, -1, 1, Q("0.31 in")),
    Sketcher.Constraint("DistanceX", 8, 3, -1, 1, Q("0.31 in")),
])
pocket1 = body.newObject("PartDesign::Pocket", "Pocket")
pocket1.Profile = sketch2
pocket1.Length = Q("0.15 in")

sketch3 = body.newObject("Sketcher::SketchObject", "Sketch002")
sketch3.AttachmentSupport = (doc.getObject("XZ_Plane"), [""])
sketch3.MapMode = "FlatFace"
sketch3.addGeometry(Part.Circle(Vector(0, 0, 0), Vector(0, 0, 1), 6), False)
sketch3.addConstraint([
    Sketcher.Constraint("Coincident", 0, 3, -1, 1),
    Sketcher.Constraint("Diameter", 0, Q("0.5 in")),
])
pad2 = body.newObject("PartDesign::Pad", "Pad001")
pad2.Profile = sketch3
pad2.Length = Q("0.3 in")
pad2.Reversed = True

doc.recompute()
